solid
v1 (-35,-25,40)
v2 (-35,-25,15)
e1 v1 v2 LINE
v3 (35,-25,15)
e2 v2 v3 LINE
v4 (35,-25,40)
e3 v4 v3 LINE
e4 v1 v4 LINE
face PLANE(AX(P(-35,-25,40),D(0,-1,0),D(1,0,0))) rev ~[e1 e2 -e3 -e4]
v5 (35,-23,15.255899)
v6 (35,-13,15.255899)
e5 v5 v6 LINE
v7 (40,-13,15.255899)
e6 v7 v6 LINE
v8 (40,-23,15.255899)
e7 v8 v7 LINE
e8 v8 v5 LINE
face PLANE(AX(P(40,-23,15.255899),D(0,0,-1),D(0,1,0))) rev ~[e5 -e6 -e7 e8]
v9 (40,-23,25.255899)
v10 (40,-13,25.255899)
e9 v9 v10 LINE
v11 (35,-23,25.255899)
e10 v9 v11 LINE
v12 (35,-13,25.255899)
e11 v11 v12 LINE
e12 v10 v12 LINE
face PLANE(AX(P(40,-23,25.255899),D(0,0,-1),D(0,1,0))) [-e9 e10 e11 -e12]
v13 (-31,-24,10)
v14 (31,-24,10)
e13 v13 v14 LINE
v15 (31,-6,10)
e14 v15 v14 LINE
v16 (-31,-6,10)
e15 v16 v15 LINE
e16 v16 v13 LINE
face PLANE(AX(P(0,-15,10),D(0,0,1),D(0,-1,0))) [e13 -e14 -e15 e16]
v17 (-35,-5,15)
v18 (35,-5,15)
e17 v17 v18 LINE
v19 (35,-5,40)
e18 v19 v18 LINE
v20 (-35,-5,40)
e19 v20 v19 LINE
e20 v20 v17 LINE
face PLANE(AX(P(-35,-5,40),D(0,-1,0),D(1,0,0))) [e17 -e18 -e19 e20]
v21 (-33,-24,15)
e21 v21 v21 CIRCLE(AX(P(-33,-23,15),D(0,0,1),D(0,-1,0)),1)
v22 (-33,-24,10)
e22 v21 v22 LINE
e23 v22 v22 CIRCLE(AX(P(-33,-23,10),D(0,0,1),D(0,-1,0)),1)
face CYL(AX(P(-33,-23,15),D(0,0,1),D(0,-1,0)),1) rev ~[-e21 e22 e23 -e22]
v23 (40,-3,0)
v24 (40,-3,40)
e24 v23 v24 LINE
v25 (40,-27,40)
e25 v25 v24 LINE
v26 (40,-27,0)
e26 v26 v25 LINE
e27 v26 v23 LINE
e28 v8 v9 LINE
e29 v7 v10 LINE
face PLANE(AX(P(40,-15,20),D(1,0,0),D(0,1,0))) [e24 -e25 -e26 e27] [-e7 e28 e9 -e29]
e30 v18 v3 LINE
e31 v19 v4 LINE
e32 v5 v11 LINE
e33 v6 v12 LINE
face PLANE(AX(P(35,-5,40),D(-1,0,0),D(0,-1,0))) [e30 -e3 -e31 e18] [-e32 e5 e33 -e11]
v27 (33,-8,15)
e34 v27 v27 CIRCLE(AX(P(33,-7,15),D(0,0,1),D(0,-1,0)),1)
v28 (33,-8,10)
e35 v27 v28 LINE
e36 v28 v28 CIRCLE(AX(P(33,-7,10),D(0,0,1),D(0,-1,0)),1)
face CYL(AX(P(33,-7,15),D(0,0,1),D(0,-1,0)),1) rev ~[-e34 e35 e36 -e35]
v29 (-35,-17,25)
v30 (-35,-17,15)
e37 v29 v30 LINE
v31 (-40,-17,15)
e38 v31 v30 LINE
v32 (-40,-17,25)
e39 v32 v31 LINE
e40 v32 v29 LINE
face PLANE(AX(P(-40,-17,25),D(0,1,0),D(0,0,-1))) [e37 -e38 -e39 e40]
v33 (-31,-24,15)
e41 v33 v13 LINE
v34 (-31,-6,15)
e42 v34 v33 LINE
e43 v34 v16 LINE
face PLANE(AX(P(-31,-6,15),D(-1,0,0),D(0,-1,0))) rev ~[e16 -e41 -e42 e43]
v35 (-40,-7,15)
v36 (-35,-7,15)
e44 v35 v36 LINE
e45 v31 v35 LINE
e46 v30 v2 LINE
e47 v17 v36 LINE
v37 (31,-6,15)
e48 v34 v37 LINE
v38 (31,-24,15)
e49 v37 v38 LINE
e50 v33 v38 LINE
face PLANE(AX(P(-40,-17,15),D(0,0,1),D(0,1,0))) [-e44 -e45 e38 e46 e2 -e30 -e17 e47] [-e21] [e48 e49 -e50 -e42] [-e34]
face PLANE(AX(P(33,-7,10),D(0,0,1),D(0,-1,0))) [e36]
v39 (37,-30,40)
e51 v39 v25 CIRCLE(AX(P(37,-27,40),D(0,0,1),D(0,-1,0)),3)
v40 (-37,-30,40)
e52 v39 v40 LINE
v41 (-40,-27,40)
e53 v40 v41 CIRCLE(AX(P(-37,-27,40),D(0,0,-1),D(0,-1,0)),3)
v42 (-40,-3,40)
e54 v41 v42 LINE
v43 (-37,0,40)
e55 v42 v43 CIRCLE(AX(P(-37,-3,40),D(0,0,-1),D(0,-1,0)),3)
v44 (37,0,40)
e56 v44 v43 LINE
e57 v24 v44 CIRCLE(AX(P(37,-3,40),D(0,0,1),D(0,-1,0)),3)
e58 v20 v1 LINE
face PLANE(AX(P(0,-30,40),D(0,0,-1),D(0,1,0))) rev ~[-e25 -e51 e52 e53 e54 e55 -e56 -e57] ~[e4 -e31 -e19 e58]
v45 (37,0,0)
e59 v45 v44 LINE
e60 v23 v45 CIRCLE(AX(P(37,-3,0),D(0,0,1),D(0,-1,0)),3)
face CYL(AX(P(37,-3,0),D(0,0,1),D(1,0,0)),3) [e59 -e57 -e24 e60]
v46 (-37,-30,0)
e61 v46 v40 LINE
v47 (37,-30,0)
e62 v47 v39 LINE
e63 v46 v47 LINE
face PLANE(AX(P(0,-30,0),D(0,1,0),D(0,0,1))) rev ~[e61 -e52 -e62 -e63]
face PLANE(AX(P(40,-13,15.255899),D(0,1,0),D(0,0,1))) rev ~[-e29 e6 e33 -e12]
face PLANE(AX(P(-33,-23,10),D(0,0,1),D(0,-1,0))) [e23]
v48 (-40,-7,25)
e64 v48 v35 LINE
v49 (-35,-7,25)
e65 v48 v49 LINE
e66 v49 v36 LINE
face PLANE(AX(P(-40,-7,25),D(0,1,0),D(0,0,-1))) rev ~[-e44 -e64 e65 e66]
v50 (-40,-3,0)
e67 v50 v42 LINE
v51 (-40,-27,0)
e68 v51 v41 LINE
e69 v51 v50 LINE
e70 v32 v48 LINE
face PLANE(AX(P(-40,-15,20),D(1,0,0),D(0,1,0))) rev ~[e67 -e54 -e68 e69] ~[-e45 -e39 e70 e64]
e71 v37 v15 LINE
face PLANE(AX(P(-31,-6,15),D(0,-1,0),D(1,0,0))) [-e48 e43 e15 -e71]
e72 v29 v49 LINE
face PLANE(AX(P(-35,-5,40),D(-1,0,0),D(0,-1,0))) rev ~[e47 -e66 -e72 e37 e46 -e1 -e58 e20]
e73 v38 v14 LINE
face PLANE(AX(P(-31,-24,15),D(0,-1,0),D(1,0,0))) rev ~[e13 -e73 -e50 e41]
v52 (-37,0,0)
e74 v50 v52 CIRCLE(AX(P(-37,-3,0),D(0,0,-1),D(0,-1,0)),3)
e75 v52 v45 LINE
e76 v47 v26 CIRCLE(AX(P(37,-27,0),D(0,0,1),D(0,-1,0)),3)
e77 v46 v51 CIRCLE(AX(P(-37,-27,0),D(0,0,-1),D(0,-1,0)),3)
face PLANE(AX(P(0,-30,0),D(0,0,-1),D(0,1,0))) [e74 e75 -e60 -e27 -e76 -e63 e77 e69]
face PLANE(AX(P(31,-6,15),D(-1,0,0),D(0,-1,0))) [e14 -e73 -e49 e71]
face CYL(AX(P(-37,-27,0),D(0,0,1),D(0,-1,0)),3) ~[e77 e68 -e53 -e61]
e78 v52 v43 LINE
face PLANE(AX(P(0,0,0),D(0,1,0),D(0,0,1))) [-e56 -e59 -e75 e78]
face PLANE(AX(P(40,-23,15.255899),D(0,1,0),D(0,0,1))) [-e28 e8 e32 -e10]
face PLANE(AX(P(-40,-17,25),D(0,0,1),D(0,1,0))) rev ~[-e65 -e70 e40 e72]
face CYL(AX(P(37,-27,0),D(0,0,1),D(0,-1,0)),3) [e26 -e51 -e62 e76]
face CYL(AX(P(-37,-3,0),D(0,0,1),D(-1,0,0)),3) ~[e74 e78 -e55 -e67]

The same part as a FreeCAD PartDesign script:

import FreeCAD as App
import Part
import Sketcher

V = App.Vector
Q = App.Units.Quantity


def edges_at(feature, points):
    """Names of the edges that pass closest to the given points."""
    edges = feature.Shape.Edges
    near = lambda p: min(range(len(edges)), key=lambda i: edges[i].distToShape(Part.Vertex(*p))[0])
    return sorted({f"Edge{near(p) + 1}" for p in points})

doc = App.newDocument("Part")
body = doc.addObject("PartDesign::Body", "Body")

sketch1 = doc.addObject("Sketcher::SketchObject", "Sketch")
body.addObject(sketch1)
sketch1.AttachmentSupport = (doc.YZ_Plane, [""])
sketch1.MapMode = "FlatFace"
sketch1.addGeometry([
    Part.LineSegment(V(-30, 40, 0), V(-30, 0, 0)),
    Part.LineSegment(V(-30, 0, 0), V(0, 0, 0)),
    Part.LineSegment(V(0, 0, 0), V(0, 40, 0)),
    Part.LineSegment(V(0, 40, 0), V(-30, 40, 0)),
], False)
sketch1.addConstraint([
    Sketcher.Constraint("Coincident", 0, 2, 1, 1),
    Sketcher.Constraint("Coincident", 1, 2, 2, 1),
    Sketcher.Constraint("Coincident", 2, 2, 3, 1),
    Sketcher.Constraint("Coincident", 3, 2, 0, 1),
    Sketcher.Constraint("Vertical", 0),
    Sketcher.Constraint("Horizontal", 1),
    Sketcher.Constraint("Vertical", 2),
    Sketcher.Constraint("Horizontal", 3),
    Sketcher.Constraint("Coincident", 1, 2, -1, 1),
    Sketcher.Constraint("DistanceX", 1, 1, 1, 2, Q("30 mm")),
    Sketcher.Constraint("DistanceY", 0, 2, 0, 1, Q("40 mm")),
])
pad1 = doc.addObject("PartDesign::Pad", "Pad")
body.addObject(pad1)
pad1.Profile = sketch1
pad1.Length = 80
pad1.Midplane = True

sketch2 = doc.addObject("Sketcher::SketchObject", "Sketch001")
body.addObject(sketch2)
sketch2.AttachmentSupport = (doc.XY_Plane, [""])
sketch2.MapMode = "FlatFace"
sketch2.AttachmentOffset = App.Placement(V(0, 0, 40), App.Rotation())
sketch2.addGeometry([
    Part.LineSegment(V(35, -5, 0), V(-35, -5, 0)),
    Part.LineSegment(V(-35, -5, 0), V(-35, -25, 0)),
    Part.LineSegment(V(-35, -25, 0), V(35, -25, 0)),
    Part.LineSegment(V(35, -25, 0), V(35, -5, 0)),
], False)
sketch2.addConstraint([
    Sketcher.Constraint("Coincident", 0, 2, 1, 1),
    Sketcher.Constraint("Coincident", 1, 2, 2, 1),
    Sketcher.Constraint("Coincident", 2, 2, 3, 1),
    Sketcher.Constraint("Coincident", 3, 2, 0, 1),
    Sketcher.Constraint("Horizontal", 0),
    Sketcher.Constraint("Vertical", 1),
    Sketcher.Constraint("Horizontal", 2),
    Sketcher.Constraint("Vertical", 3),
    Sketcher.Constraint("DistanceX", 0, 2, 0, 1, Q("70 mm")),
    Sketcher.Constraint("DistanceY", 1, 2, 1, 1, Q("20 mm")),
    Sketcher.Constraint("DistanceX", 0, 2, -1, 1, Q("35 mm")),
    Sketcher.Constraint("DistanceY", 0, 2, -1, 1, Q("5 mm")),
])
pocket1 = doc.addObject("PartDesign::Pocket", "Pocket")
body.addObject(pocket1)
pocket1.Profile = sketch2
pocket1.Length = 25

sketch3 = doc.addObject("Sketcher::SketchObject", "Sketch002")
body.addObject(sketch3)
sketch3.AttachmentSupport = (doc.XY_Plane, [""])
sketch3.MapMode = "FlatFace"
sketch3.AttachmentOffset = App.Placement(V(0, 0, 15), App.Rotation())
sketch3.addGeometry([
    Part.LineSegment(V(31, -6, 0), V(-31, -6, 0)),
    Part.LineSegment(V(-31, -6, 0), V(-31, -24, 0)),
    Part.LineSegment(V(-31, -24, 0), V(31, -24, 0)),
    Part.LineSegment(V(31, -24, 0), V(31, -6, 0)),
], False)
sketch3.addConstraint([
    Sketcher.Constraint("Coincident", 0, 2, 1, 1),
    Sketcher.Constraint("Coincident", 1, 2, 2, 1),
    Sketcher.Constraint("Coincident", 2, 2, 3, 1),
    Sketcher.Constraint("Coincident", 3, 2, 0, 1),
    Sketcher.Constraint("Horizontal", 0),
    Sketcher.Constraint("Vertical", 1),
    Sketcher.Constraint("Horizontal", 2),
    Sketcher.Constraint("Vertical", 3),
    Sketcher.Constraint("DistanceX", 0, 2, 0, 1, Q("62 mm")),
    Sketcher.Constraint("DistanceY", 1, 2, 1, 1, Q("18 mm")),
    Sketcher.Constraint("DistanceX", 0, 2, -1, 1, Q("31 mm")),
    Sketcher.Constraint("DistanceY", 0, 2, -1, 1, Q("6 mm")),
])
pocket2 = doc.addObject("PartDesign::Pocket", "Pocket001")
body.addObject(pocket2)
pocket2.Profile = sketch3
pocket2.Length = 5

sketch4 = doc.addObject("Sketcher::SketchObject", "Sketch003")
body.addObject(sketch4)
sketch4.AttachmentSupport = (doc.XY_Plane, [""])
sketch4.MapMode = "FlatFace"
sketch4.AttachmentOffset = App.Placement(V(0, 0, 15), App.Rotation())
sketch4.addGeometry([
    Part.Circle(V(33, -7, 0), V(0, 0, 1), 1),
    Part.Circle(V(-33, -23, 0), V(0, 0, 1), 1),
], False)
sketch4.addConstraint([
    Sketcher.Constraint("Equal", 0, 1),
    Sketcher.Constraint("Diameter", 0, Q("2 mm")),
    Sketcher.Constraint("DistanceX", -1, 1, 0, 3, Q("33 mm")),
    Sketcher.Constraint("DistanceY", 0, 3, -1, 1, Q("7 mm")),
    Sketcher.Constraint("DistanceX", 1, 3, -1, 1, Q("33 mm")),
    Sketcher.Constraint("DistanceY", 1, 3, -1, 1, Q("23 mm")),
])
pocket3 = doc.addObject("PartDesign::Pocket", "Pocket002")
body.addObject(pocket3)
pocket3.Profile = sketch4
pocket3.Length = 5

sketch5 = doc.addObject("Sketcher::SketchObject", "Sketch004")
body.addObject(sketch5)
sketch5.AttachmentSupport = (doc.YZ_Plane, [""])
sketch5.MapMode = "FlatFace"
sketch5.AttachmentOffset = App.Placement(V(0, 0, -40), App.Rotation())
sketch5.addGeometry([
    Part.LineSegment(V(-17, 15, 0), V(-17, 25, 0)),
    Part.LineSegment(V(-17, 25, 0), V(-7, 25, 0)),
    Part.LineSegment(V(-7, 25, 0), V(-7, 15, 0)),
    Part.LineSegment(V(-7, 15, 0), V(-17, 15, 0)),
], False)
sketch5.addConstraint([
    Sketcher.Constraint("Coincident", 0, 2, 1, 1),
    Sketcher.Constraint("Coincident", 1, 2, 2, 1),
    Sketcher.Constraint("Coincident", 2, 2, 3, 1),
    Sketcher.Constraint("Coincident", 3, 2, 0, 1),
    Sketcher.Constraint("Vertical", 0),
    Sketcher.Constraint("Horizontal", 1),
    Sketcher.Constraint("Vertical", 2),
    Sketcher.Constraint("Horizontal", 3),
    Sketcher.Constraint("Equal", 3, 0),
    Sketcher.Constraint("DistanceX", 1, 1, 1, 2, Q("10 mm")),
    Sketcher.Constraint("DistanceX", 0, 2, -1, 1, Q("17 mm")),
    Sketcher.Constraint("DistanceY", -1, 1, 0, 2, Q("25 mm")),
])
pocket4 = doc.addObject("PartDesign::Pocket", "Pocket003")
body.addObject(pocket4)
pocket4.Profile = sketch5
pocket4.Length = 5
pocket4.Reversed = True

sketch6 = doc.addObject("Sketcher::SketchObject", "Sketch005")
body.addObject(sketch6)
sketch6.AttachmentSupport = (doc.YZ_Plane, [""])
sketch6.MapMode = "FlatFace"
sketch6.AttachmentOffset = App.Placement(V(0, 0, 40), App.Rotation())
sketch6.addGeometry([
    Part.LineSegment(V(-23, 25.255899, 0), V(-23, 15.255899, 0)),
    Part.LineSegment(V(-23, 15.255899, 0), V(-13, 15.255899, 0)),
    Part.LineSegment(V(-13, 15.255899, 0), V(-13, 25.255899, 0)),
    Part.LineSegment(V(-13, 25.255899, 0), V(-23, 25.255899, 0)),
], False)
sketch6.addConstraint([
    Sketcher.Constraint("Coincident", 0, 2, 1, 1),
    Sketcher.Constraint("Coincident", 1, 2, 2, 1),
    Sketcher.Constraint("Coincident", 2, 2, 3, 1),
    Sketcher.Constraint("Coincident", 3, 2, 0, 1),
    Sketcher.Constraint("Vertical", 0),
    Sketcher.Constraint("Horizontal", 1),
    Sketcher.Constraint("Vertical", 2),
    Sketcher.Constraint("Horizontal", 3),
    Sketcher.Constraint("Equal", 3, 0),
    Sketcher.Constraint("DistanceX", 1, 1, 1, 2, Q("10 mm")),
    Sketcher.Constraint("DistanceX", 0, 2, -1, 1, Q("23 mm")),
    Sketcher.Constraint("DistanceY", -1, 1, 0, 2, Q("15.255899 mm")),
])
pocket5 = doc.addObject("PartDesign::Pocket", "Pocket004")
body.addObject(pocket5)
pocket5.Profile = sketch6
pocket5.Length = 5
doc.recompute()

fillet = doc.addObject("PartDesign::Fillet", "Fillet")
body.addObject(fillet)
fillet.Base = (pocket5, edges_at(pocket5, [
    (40, -30, 20),
    (40, 0, 20),
    (-40, 0, 20),
    (-40, -30, 20),
]))
fillet.Radius = 3

doc.recompute()
